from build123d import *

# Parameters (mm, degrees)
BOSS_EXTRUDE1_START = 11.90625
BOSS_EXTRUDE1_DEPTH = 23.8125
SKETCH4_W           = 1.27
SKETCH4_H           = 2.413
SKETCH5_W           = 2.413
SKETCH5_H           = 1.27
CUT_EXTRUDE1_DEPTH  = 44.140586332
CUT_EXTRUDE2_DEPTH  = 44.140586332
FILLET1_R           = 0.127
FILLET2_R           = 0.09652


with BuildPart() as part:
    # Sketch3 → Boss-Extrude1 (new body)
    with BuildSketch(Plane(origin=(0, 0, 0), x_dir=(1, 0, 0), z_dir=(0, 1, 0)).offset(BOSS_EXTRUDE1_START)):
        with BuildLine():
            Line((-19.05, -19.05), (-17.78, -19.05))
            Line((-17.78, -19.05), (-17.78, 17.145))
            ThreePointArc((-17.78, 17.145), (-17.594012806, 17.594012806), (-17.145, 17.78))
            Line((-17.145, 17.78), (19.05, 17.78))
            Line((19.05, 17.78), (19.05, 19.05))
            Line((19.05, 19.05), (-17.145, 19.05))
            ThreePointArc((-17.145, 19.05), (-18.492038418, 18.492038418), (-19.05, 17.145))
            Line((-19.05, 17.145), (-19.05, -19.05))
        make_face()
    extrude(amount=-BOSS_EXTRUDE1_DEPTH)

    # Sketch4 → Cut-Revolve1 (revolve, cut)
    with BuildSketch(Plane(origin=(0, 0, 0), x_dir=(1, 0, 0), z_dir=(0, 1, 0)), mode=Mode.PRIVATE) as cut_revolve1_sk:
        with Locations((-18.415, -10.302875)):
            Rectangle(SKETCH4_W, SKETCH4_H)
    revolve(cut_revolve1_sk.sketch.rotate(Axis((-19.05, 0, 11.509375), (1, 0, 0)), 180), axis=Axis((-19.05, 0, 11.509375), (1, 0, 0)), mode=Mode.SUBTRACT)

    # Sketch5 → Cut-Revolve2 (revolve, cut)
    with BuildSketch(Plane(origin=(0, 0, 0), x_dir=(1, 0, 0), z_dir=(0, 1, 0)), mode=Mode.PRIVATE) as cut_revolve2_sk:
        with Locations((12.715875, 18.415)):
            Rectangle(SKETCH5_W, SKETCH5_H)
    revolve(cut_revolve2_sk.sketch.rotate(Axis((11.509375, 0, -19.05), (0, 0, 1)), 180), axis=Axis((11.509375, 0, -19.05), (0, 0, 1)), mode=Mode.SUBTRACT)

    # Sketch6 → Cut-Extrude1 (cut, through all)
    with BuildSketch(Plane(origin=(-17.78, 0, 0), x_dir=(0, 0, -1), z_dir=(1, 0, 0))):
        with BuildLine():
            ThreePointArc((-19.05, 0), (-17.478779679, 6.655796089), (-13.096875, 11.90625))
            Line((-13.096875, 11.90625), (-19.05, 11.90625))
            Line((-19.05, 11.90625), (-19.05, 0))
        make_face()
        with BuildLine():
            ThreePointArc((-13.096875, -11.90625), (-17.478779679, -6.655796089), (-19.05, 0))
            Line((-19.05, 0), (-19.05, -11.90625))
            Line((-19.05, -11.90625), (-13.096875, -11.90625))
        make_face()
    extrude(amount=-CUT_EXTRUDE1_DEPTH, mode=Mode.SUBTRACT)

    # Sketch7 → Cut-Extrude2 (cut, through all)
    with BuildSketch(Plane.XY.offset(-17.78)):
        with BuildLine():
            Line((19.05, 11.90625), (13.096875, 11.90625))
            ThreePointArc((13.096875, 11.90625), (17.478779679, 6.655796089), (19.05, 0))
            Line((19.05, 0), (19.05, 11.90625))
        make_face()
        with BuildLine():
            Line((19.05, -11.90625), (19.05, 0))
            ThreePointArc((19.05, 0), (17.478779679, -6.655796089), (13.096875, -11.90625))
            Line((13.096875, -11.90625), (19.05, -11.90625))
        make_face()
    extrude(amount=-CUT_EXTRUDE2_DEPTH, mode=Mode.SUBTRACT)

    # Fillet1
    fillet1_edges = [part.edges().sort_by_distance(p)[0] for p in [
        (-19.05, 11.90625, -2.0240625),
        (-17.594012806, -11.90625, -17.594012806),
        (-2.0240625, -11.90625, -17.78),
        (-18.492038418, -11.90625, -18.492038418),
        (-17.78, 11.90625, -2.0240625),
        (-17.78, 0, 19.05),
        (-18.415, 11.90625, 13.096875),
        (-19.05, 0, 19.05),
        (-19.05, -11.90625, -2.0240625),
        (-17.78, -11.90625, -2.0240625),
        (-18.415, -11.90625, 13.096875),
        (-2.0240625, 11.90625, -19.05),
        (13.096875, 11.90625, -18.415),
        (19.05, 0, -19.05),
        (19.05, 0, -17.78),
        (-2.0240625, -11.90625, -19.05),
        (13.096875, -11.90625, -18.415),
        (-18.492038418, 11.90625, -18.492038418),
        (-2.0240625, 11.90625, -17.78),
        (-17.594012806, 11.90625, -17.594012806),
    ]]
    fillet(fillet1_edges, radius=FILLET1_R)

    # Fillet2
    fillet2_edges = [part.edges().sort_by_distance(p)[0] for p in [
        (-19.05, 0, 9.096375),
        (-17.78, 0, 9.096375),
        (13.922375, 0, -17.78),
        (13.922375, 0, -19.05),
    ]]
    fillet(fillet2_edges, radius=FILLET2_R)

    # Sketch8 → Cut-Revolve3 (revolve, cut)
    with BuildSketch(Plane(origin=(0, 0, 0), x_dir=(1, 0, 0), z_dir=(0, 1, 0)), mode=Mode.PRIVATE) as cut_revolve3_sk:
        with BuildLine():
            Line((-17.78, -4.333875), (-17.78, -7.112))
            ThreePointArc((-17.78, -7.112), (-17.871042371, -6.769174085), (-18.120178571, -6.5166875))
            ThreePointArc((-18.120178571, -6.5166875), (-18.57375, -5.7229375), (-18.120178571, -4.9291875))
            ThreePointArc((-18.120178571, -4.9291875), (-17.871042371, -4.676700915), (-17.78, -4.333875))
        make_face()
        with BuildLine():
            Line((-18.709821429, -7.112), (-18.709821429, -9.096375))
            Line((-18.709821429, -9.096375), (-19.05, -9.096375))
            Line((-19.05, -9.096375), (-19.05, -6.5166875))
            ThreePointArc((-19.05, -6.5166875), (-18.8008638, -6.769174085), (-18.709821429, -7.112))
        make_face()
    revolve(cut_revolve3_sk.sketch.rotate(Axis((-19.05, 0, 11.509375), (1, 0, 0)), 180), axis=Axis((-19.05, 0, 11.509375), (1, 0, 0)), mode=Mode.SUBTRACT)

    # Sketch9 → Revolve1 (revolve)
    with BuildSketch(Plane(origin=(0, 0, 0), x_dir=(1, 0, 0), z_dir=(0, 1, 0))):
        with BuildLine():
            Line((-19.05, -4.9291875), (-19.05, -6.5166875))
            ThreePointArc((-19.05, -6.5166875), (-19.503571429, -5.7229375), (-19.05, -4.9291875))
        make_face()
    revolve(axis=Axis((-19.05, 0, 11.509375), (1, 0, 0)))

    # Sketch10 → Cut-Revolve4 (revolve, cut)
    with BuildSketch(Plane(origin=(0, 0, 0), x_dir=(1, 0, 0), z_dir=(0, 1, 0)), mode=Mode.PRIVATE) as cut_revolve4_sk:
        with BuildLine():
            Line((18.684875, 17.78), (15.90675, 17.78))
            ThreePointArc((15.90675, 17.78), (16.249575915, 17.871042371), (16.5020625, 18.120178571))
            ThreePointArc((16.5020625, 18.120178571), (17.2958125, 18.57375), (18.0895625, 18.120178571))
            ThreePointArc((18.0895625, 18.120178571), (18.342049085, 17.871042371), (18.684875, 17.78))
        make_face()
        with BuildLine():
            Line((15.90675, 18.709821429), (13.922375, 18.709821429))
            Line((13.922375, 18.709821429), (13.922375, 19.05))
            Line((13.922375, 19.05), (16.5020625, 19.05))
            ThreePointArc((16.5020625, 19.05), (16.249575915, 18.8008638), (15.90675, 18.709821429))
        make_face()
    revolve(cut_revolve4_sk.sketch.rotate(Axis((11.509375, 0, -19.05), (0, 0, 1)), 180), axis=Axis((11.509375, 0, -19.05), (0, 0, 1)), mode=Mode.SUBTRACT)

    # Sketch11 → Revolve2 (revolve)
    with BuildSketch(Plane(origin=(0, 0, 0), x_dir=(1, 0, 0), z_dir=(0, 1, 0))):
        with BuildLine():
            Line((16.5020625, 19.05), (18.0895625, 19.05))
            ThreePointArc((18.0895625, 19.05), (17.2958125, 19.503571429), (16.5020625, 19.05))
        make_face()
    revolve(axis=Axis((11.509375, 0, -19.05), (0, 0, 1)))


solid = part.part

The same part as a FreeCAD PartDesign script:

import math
import FreeCAD as App
import Part
import Sketcher

V = App.Vector
Q = App.Units.Quantity


def edges_at(feature, points):
    """Names of the edges that pass closest to the given points."""
    edges = feature.Shape.Edges
    near = lambda p: min(range(len(edges)), key=lambda i: edges[i].distToShape(Part.Vertex(*p))[0])
    return sorted({f"Edge{near(p) + 1}" for p in points})

doc = App.newDocument("Part")
body = doc.addObject("PartDesign::Body", "Body")

sketch1 = body.newObject("Sketcher::SketchObject", "Sketch")
sketch1.AttachmentSupport = (doc.getObject("XZ_Plane"), [""])
sketch1.MapMode = "FlatFace"
sketch1.AttachmentOffset = App.Placement(V(0, 0, -0.46875 * 25.4), App.Rotation())
sketch1.addGeometry([
    Part.LineSegment(V(-19.1, 19.1, 0), V(-17.8, 19.1, 0)),
    Part.LineSegment(V(-17.8, 19.1, 0), V(-17.8, -17.1, 0)),
    Part.ArcOfCircle(Part.Circle(V(-17.1, -17.1, 0), V(0, 0, 1), 0.6), math.radians(180), math.radians(270)),
    Part.LineSegment(V(-17.1, -17.8, 0), V(19.1, -17.8, 0)),
    Part.LineSegment(V(19.1, -17.8, 0), V(19.1, -19.1, 0)),
    Part.LineSegment(V(19.1, -19.1, 0), V(-17.1, -19.1, 0)),
    Part.ArcOfCircle(Part.Circle(V(-17.1, -17.1, 0), V(0, 0, 1), 1.9), math.radians(-180), math.radians(-90)),
    Part.LineSegment(V(-19.1, -17.1, 0), V(-19.1, 19.1, 0)),
], False)
sketch1.addConstraint([
    Sketcher.Constraint("Coincident", 0, 2, 1, 1),
    Sketcher.Constraint("Tangent", 1, 2, 2, 1),
    Sketcher.Constraint("Tangent", 2, 2, 3, 1),
    Sketcher.Constraint("Coincident", 3, 2, 4, 1),
    Sketcher.Constraint("Coincident", 4, 2, 5, 1),
    Sketcher.Constraint("Tangent", 5, 2, 6, 2),
    Sketcher.Constraint("Tangent", 6, 1, 7, 1),
    Sketcher.Constraint("Coincident", 7, 2, 0, 1),
    Sketcher.Constraint("Horizontal", 0),
    Sketcher.Constraint("Vertical", 1),
    Sketcher.Constraint("Horizontal", 3),
    Sketcher.Constraint("Vertical", 4),
    Sketcher.Constraint("Horizontal", 5),
    Sketcher.Constraint("Vertical", 7),
    Sketcher.Constraint("Coincident", 6, 3, 2, 3),
    Sketcher.Constraint("Symmetric", 4, 2, 7, 2, -1, 1),
    Sketcher.Constraint("Equal", 5, 1),
    Sketcher.Constraint("Radius", 2, Q("0.025 in")),
    Sketcher.Constraint("Radius", 6, Q("0.075 in")),
    Sketcher.Constraint("DistanceX", 0, 2, -1, 1, Q("0.7 in")),
])
pad1 = body.newObject("PartDesign::Pad", "Pad")
pad1.Profile = sketch1
pad1.Length = Q("0.9375 in")

sketch2 = body.newObject("Sketcher::SketchObject", "Sketch001")
sketch2.AttachmentSupport = (doc.getObject("XZ_Plane"), [""])
sketch2.MapMode = "FlatFace"
sketch2.addGeometry([
    Part.LineSegment(V(-19.1, 9.1, 0), V(-19.1, 11.5, 0)),
    Part.LineSegment(V(-19.1, 11.5, 0), V(-17.8, 11.5, 0)),
    Part.LineSegment(V(-17.8, 11.5, 0), V(-17.8, 9.1, 0)),
    Part.LineSegment(V(-17.8, 9.1, 0), V(-19.1, 9.1, 0)),
], False)
sketch2.addGeometry(Part.LineSegment(V(-19.1, 11.5, 0), V(-17.8, 11.5, 0)), True)
sketch2.addConstraint([
    Sketcher.Constraint("Coincident", 0, 2, 1, 1),
    Sketcher.Constraint("Coincident", 1, 2, 2, 1),
    Sketcher.Constraint("Coincident", 2, 2, 3, 1),
    Sketcher.Constraint("Coincident", 3, 2, 0, 1),
    Sketcher.Constraint("Vertical", 0),
    Sketcher.Constraint("Horizontal", 1),
    Sketcher.Constraint("Vertical", 2),
    Sketcher.Constraint("Horizontal", 3),
    Sketcher.Constraint("Horizontal", 4),
    Sketcher.Constraint("Coincident", 4, 1, 0, 2),
    Sketcher.Constraint("Vertical", 2, 2, 4, 2),
    Sketcher.Constraint("DistanceX", 1, 1, 1, 2, Q("0.05 in")),
    Sketcher.Constraint("DistanceX", 1, 2, -1, 1, Q("0.7 in")),
    Sketcher.Constraint("DistanceY", 0, 1, 0, 2, Q("0.095 in")),
    Sketcher.Constraint("DistanceY", -1, 1, 0, 2, Q("0.453125 in")),
])
groove = body.newObject("PartDesign::Groove", "Groove")
groove.Profile = sketch2
groove.ReferenceAxis = (sketch2, ["Axis0"])
groove.Angle = 360

sketch3 = body.newObject("Sketcher::SketchObject", "Sketch002")
sketch3.AttachmentSupport = (doc.getObject("XZ_Plane"), [""])
sketch3.MapMode = "FlatFace"
sketch3.addGeometry([
    Part.LineSegment(V(11.5, -19.1, 0), V(11.5, -17.8, 0)),
    Part.LineSegment(V(11.5, -17.8, 0), V(13.9, -17.8, 0)),
    Part.LineSegment(V(13.9, -17.8, 0), V(13.9, -19.1, 0)),
    Part.LineSegment(V(13.9, -19.1, 0), V(11.5, -19.1, 0)),
], False)
sketch3.addGeometry(Part.LineSegment(V(11.5, -19.1, 0), V(11.5, -17.8, 0)), True)
sketch3.addConstraint([
    Sketcher.Constraint("Coincident", 0, 2, 1, 1),
    Sketcher.Constraint("Coincident", 1, 2, 2, 1),
    Sketcher.Constraint("Coincident", 2, 2, 3, 1),
    Sketcher.Constraint("Coincident", 3, 2, 0, 1),
    Sketcher.Constraint("Vertical", 0),
    Sketcher.Constraint("Horizontal", 1),
    Sketcher.Constraint("Vertical", 2),
    Sketcher.Constraint("Horizontal", 3),
    Sketcher.Constraint("Vertical", 4),
    Sketcher.Constraint("Coincident", 4, 1, 3, 2),
    Sketcher.Constraint("Horizontal", 1, 2, 4, 2),
    Sketcher.Constraint("DistanceY", 0, 1, 0, 2, Q("0.05 in")),
    Sketcher.Constraint("DistanceY", 0, 2, -1, 1, Q("0.7 in")),
    Sketcher.Constraint("DistanceX", 1, 1, 1, 2, Q("0.095 in")),
    Sketcher.Constraint("DistanceX", -1, 1, 0, 2, Q("0.453125 in")),
])
groove2 = body.newObject("PartDesign::Groove", "Groove001")
groove2.Profile = sketch3
groove2.ReferenceAxis = (sketch3, ["Axis0"])
groove2.Angle = 360

sketch4 = body.newObject("Sketcher::SketchObject", "Sketch003")
sketch4.AttachmentSupport = (doc.getObject("YZ_Plane"), [""])
sketch4.MapMode = "FlatFace"
sketch4.AttachmentOffset = App.Placement(V(0, 0, -0.7 * 25.4), App.Rotation())
sketch4.addGeometry([
    Part.ArcOfCircle(Part.Circle(V(0, 4, 0), V(0, 0, 1), 15), math.radians(37), math.radians(90)),
    Part.LineSegment(V(12, 13, 0), V(12, 19, 0)),
    Part.LineSegment(V(12, 19, 0), V(0, 19, 0)),
    Part.ArcOfCircle(Part.Circle(V(0, 4, 0), V(0, 0, 1), 15), math.radians(90), math.radians(143)),
    Part.LineSegment(V(0, 19, 0), V(-12, 19, 0)),
    Part.LineSegment(V(-12, 19, 0), V(-12, 13, 0)),
], False)
sketch4.addConstraint([
    Sketcher.Constraint("Coincident", 0, 1, 1, 1),
    Sketcher.Constraint("Coincident", 1, 2, 2, 1),
    Sketcher.Constraint("Tangent", 2, 2, 0, 2),
    Sketcher.Constraint("Tangent", 3, 1, 4, 1),
    Sketcher.Constraint("Coincident", 4, 2, 5, 1),
    Sketcher.Constraint("Coincident", 5, 2, 3, 2),
    Sketcher.Constraint("Vertical", 1),
    Sketcher.Constraint("Horizontal", 2),
    Sketcher.Constraint("Horizontal", 4),
    Sketcher.Constraint("Vertical", 5),
    Sketcher.Constraint("Coincident", 3, 3, 0, 3),
    Sketcher.Constraint("Equal", 0, 3),
    Sketcher.Constraint("Symmetric", 0, 1, 5, 2, -2),
    Sketcher.Constraint("DistanceX", 2, 2, 2, 1, Q("0.46875 in")),
    Sketcher.Constraint("DistanceY", 1, 1, 1, 2, Q("0.234375 in")),
    Sketcher.Constraint("DistanceY", -1, 1, 1, 2, Q("0.75 in")),
])
pocket1 = body.newObject("PartDesign::Pocket", "Pocket")
pocket1.Profile = sketch4
pocket1.Type = "ThroughAll"

sketch5 = body.newObject("Sketcher::SketchObject", "Sketch004")
sketch5.AttachmentSupport = (doc.getObject("XY_Plane"), [""])
sketch5.MapMode = "FlatFace"
sketch5.AttachmentOffset = App.Placement(V(0, 0, -0.7 * 25.4), App.Rotation())
sketch5.addGeometry([
    Part.LineSegment(V(19, 12, 0), V(13, 12, 0)),
    Part.ArcOfCircle(Part.Circle(V(4, 0, 0), V(0, 0, 1), 15), math.radians(0), math.radians(53)),
    Part.LineSegment(V(19, 0, 0), V(19, 12, 0)),
    Part.LineSegment(V(19, -12, 0), V(19, 0, 0)),
    Part.ArcOfCircle(Part.Circle(V(4, 0, 0), V(0, 0, 1), 15), math.radians(-53), math.radians(0)),
    Part.LineSegment(V(13, -12, 0), V(19, -12, 0)),
], False)
sketch5.addConstraint([
    Sketcher.Constraint("Coincident", 0, 2, 1, 2),
    Sketcher.Constraint("Tangent", 1, 1, 2, 1),
    Sketcher.Constraint("Coincident", 2, 2, 0, 1),
    Sketcher.Constraint("Tangent", 3, 2, 4, 2),
    Sketcher.Constraint("Coincident", 4, 1, 5, 1),
    Sketcher.Constraint("Coincident", 5, 2, 3, 1),
    Sketcher.Constraint("Horizontal", 0),
    Sketcher.Constraint("Vertical", 2),
    Sketcher.Constraint("Vertical", 3),
    Sketcher.Constraint("Horizontal", 5),
    Sketcher.Constraint("Coincident", 4, 3, 1, 3),
    Sketcher.Constraint("Equal", 1, 4),
    Sketcher.Constraint("Symmetric", 0, 2, 4, 1, -1),
    Sketcher.Constraint("DistanceX", 0, 2, 0, 1, Q("0.234375 in")),
    Sketcher.Constraint("DistanceY", 2, 1, 2, 2, Q("0.46875 in")),
    Sketcher.Constraint("DistanceX", -1, 1, 1, 1, Q("0.75 in")),
])
pocket2 = body.newObject("PartDesign::Pocket", "Pocket001")
pocket2.Profile = sketch5
pocket2.Type = "ThroughAll"
doc.recompute()

fillet = body.newObject("PartDesign::Fillet", "Fillet")
fillet.Base = (pocket2, edges_at(pocket2, [
    (-19.05, 11.906, -2.024),
    (-17.594, -11.906, -17.594),
    (-2.024, -11.906, -17.78),
    (-18.492, -11.906, -18.492),
    (-17.78, 11.906, -2.024),
    (-17.78, 6.656, 17.479),
    (-18.415, 11.906, 13.097),
    (-19.05, 6.656, 17.479),
    (-19.05, -11.906, -2.024),
    (-17.78, -11.906, -2.024),
    (-18.415, -11.906, 13.097),
    (-2.024, 11.906, -19.05),
    (13.097, 11.906, -18.415),
    (17.479, 6.656, -19.05),
    (17.479, 6.656, -17.78),
    (-2.024, -11.906, -19.05),
    (13.097, -11.906, -18.415),
    (-18.492, 11.906, -18.492),
    (-2.024, 11.906, -17.78),
    (-17.594, 11.906, -17.594),
]))
fillet.Radius = Q("0.005 in")
doc.recompute()

fillet2 = body.newObject("PartDesign::Fillet", "Fillet001")
fillet2.Base = (fillet, edges_at(fillet, [
    (-19.05, 0, 9.096),
    (-17.78, 0, 9.096),
    (13.922, 0, -17.78),
    (13.922, 0, -19.05),
]))
fillet2.Radius = Q("0.0038 in")

sketch6 = body.newObject("Sketcher::SketchObject", "Sketch005")
sketch6.AttachmentSupport = (doc.getObject("XZ_Plane"), [""])
sketch6.MapMode = "FlatFace"
sketch6.addGeometry([
    Part.LineSegment(V(-17.78, 7.11, 0), V(-17.78, 4.33, 0)),
    Part.ArcOfCircle(Part.Circle(V(-18.47, 4.33, 0), V(0, 0, 1), 0.69), math.radians(0), math.radians(59)),
    Part.ArcOfCircle(Part.Circle(V(-17.65, 5.72, 0), V(0, 0, 1), 0.92), math.radians(121), math.radians(239)),
    Part.ArcOfCircle(Part.Circle(V(-18.47, 7.11, 0), V(0, 0, 1), 0.69), math.radians(-59), math.radians(0)),
    Part.LineSegment(V(-18.71, 9.1, 0), V(-18.71, 7.11, 0)),
    Part.ArcOfCircle(Part.Circle(V(-19.4, 7.11, 0), V(0, 0, 1), 0.69), math.radians(-59), math.radians(0)),
    Part.LineSegment(V(-19.05, 6.52, 0), V(-19.05, 9.1, 0)),
    Part.LineSegment(V(-19.05, 9.1, 0), V(-18.71, 9.1, 0)),
], False)
sketch6.addGeometry(Part.LineSegment(V(-19.4, 11.51, 0), V(-17.65, 11.51, 0)), True)
sketch6.addConstraint([
    Sketcher.Constraint("Tangent", 0, 2, 1, 1),
    Sketcher.Constraint("Tangent", 1, 2, 2, 2),
    Sketcher.Constraint("Tangent", 2, 1, 3, 1),
    Sketcher.Constraint("Tangent", 3, 2, 0, 1),
    Sketcher.Constraint("Tangent", 4, 2, 5, 2),
    Sketcher.Constraint("Coincident", 5, 1, 6, 1),
    Sketcher.Constraint("Coincident", 6, 2, 7, 1),
    Sketcher.Constraint("Coincident", 7, 2, 4, 1),
    Sketcher.Constraint("Vertical", 0),
    Sketcher.Constraint("Vertical", 4),
    Sketcher.Constraint("Vertical", 6),
    Sketcher.Constraint("Horizontal", 7),
    Sketcher.Constraint("Horizontal", 8),
    Sketcher.Constraint("Equal", 1, 3),
    Sketcher.Constraint("Equal", 3, 5),
    Sketcher.Constraint("Horizontal", 3, 3, 5, 3),
    Sketcher.Constraint("Horizontal", 2, 1, 5, 1),
    Sketcher.Constraint("Vertical", 5, 3, 8, 1),
    Sketcher.Constraint("Vertical", 2, 3, 8, 2),
    Sketcher.Constraint("DistanceX", 0, 2, -1, 1, Q("0.7 in")),
    Sketcher.Constraint("DistanceY", 0, 2, 0, 1, Q("0.109375 in")),
    Sketcher.Constraint("DistanceY", 4, 2, 4, 1, Q("0.078125 in")),
    Sketcher.Constraint("DistanceY", -1, 1, 3, 3, Q("0.28 in")),
    Sketcher.Constraint("DistanceX", 5, 1, -1, 1, Q("0.75 in")),
    Sketcher.Constraint("DistanceY", -1, 1, 8, 1, Q("0.453125 in")),
    Sketcher.Constraint("DistanceY", 1, 2, 2, 3, Q("0.03125 in")),
    Sketcher.Constraint("Radius", 1, Q("0.690988 mm")),
])
groove3 = body.newObject("PartDesign::Groove", "Groove002")
groove3.Profile = sketch6
groove3.ReferenceAxis = (sketch6, ["Axis0"])
groove3.Angle = 360

sketch7 = body.newObject("Sketcher::SketchObject", "Sketch006")
sketch7.AttachmentSupport = (doc.getObject("XZ_Plane"), [""])
sketch7.MapMode = "FlatFace"
sketch7.addGeometry([
    Part.LineSegment(V(-19.05, 6.52, 0), V(-19.05, 4.93, 0)),
    Part.ArcOfCircle(Part.Circle(V(-18.58, 5.72, 0), V(0, 0, 1), 0.92), math.radians(121), math.radians(239)),
], False)
sketch7.addGeometry(Part.LineSegment(V(-19.05, 11.51, 0), V(-18.58, 11.51, 0)), True)
sketch7.addConstraint([
    Sketcher.Constraint("Coincident", 0, 1, 1, 1),
    Sketcher.Constraint("Coincident", 1, 2, 0, 2),
    Sketcher.Constraint("Vertical", 0),
    Sketcher.Constraint("Horizontal", 2),
    Sketcher.Constraint("Vertical", 1, 2, 2, 1),
    Sketcher.Constraint("Vertical", 1, 3, 2, 2),
    Sketcher.Constraint("DistanceY", 0, 2, 0, 1, Q("0.0625 in")),
    Sketcher.Constraint("DistanceX", 0, 1, -1, 1, Q("0.75 in")),
    Sketcher.Constraint("DistanceY", -1, 1, 2, 1, Q("0.453125 in")),
    Sketcher.Constraint("Radius", 1, Q("0.921317 mm")),
    Sketcher.Constraint("DistanceY", -1, 1, 1, 3, Q("5.722937 mm")),
])
revolution = body.newObject("PartDesign::Revolution", "Revolution")
revolution.Profile = sketch7
revolution.ReferenceAxis = (sketch7, ["Axis0"])
revolution.Angle = 360

sketch8 = body.newObject("Sketcher::SketchObject", "Sketch007")
sketch8.AttachmentSupport = (doc.getObject("XZ_Plane"), [""])
sketch8.MapMode = "FlatFace"
sketch8.addGeometry([
    Part.LineSegment(V(15.91, -17.78, 0), V(18.68, -17.78, 0)),
    Part.ArcOfCircle(Part.Circle(V(18.68, -18.47, 0), V(0, 0, 1), 0.69), math.radians(90), math.radians(149)),
    Part.ArcOfCircle(Part.Circle(V(17.3, -17.65, 0), V(0, 0, 1), 0.92), math.radians(-149), math.radians(-31)),
    Part.ArcOfCircle(Part.Circle(V(15.91, -18.47, 0), V(0, 0, 1), 0.69), math.radians(31), math.radians(90)),
    Part.LineSegment(V(13.92, -18.71, 0), V(15.91, -18.71, 0)),
    Part.ArcOfCircle(Part.Circle(V(15.91, -19.4, 0), V(0, 0, 1), 0.69), math.radians(31), math.radians(90)),
    Part.LineSegment(V(16.5, -19.05, 0), V(13.92, -19.05, 0)),
    Part.LineSegment(V(13.92, -19.05, 0), V(13.92, -18.71, 0)),
], False)
sketch8.addGeometry(Part.LineSegment(V(11.51, -19.4, 0), V(11.51, -17.65, 0)), True)
sketch8.addConstraint([
    Sketcher.Constraint("Tangent", 0, 2, 1, 1),
    Sketcher.Constraint("Tangent", 1, 2, 2, 2),
    Sketcher.Constraint("Tangent", 2, 1, 3, 1),
    Sketcher.Constraint("Tangent", 3, 2, 0, 1),
    Sketcher.Constraint("Tangent", 4, 2, 5, 2),
    Sketcher.Constraint("Coincident", 5, 1, 6, 1),
    Sketcher.Constraint("Coincident", 6, 2, 7, 1),
    Sketcher.Constraint("Coincident", 7, 2, 4, 1),
    Sketcher.Constraint("Horizontal", 0),
    Sketcher.Constraint("Horizontal", 4),
    Sketcher.Constraint("Horizontal", 6),
    Sketcher.Constraint("Vertical", 7),
    Sketcher.Constraint("Vertical", 8),
    Sketcher.Constraint("Equal", 1, 3),
    Sketcher.Constraint("Equal", 3, 5),
    Sketcher.Constraint("Horizontal", 5, 3, 8, 1),
    Sketcher.Constraint("Horizontal", 2, 3, 8, 2),
    Sketcher.Constraint("Vertical", 3, 3, 5, 3),
    Sketcher.Constraint("Vertical", 2, 1, 5, 1),
    Sketcher.Constraint("DistanceY", 0, 2, -1, 1, Q("0.7 in")),
    Sketcher.Constraint("DistanceX", 0, 1, 0, 2, Q("0.109375 in")),
    Sketcher.Constraint("DistanceX", 4, 1, 4, 2, Q("0.078125 in")),
    Sketcher.Constraint("DistanceY", 5, 1, -1, 1, Q("0.75 in")),
    Sketcher.Constraint("DistanceX", -1, 1, 8, 1, Q("0.453125 in")),
    Sketcher.Constraint("DistanceX", 2, 3, 1, 2, Q("0.03125 in")),
    Sketcher.Constraint("DistanceX", 8, 1, 6, 2, Q("0.095 in")),
    Sketcher.Constraint("Radius", 1, Q("0.690988 mm")),
])
groove4 = body.newObject("PartDesign::Groove", "Groove003")
groove4.Profile = sketch8
groove4.ReferenceAxis = (sketch8, ["Axis0"])
groove4.Angle = 360

sketch9 = body.newObject("Sketcher::SketchObject", "Sketch008")
sketch9.AttachmentSupport = (doc.getObject("XZ_Plane"), [""])
sketch9.MapMode = "FlatFace"
sketch9.addGeometry([
    Part.LineSegment(V(16.5, -19.05, 0), V(18.09, -19.05, 0)),
    Part.ArcOfCircle(Part.Circle(V(17.3, -18.58, 0), V(0, 0, 1), 0.92), math.radians(-149), math.radians(-31)),
], False)
sketch9.addGeometry(Part.LineSegment(V(11.51, -19.05, 0), V(11.51, -18.58, 0)), True)
sketch9.addConstraint([
    Sketcher.Constraint("Coincident", 0, 1, 1, 1),
    Sketcher.Constraint("Coincident", 1, 2, 0, 2),
    Sketcher.Constraint("Horizontal", 0),
    Sketcher.Constraint("Vertical", 2),
    Sketcher.Constraint("Horizontal", 1, 2, 2, 1),
    Sketcher.Constraint("Horizontal", 1, 3, 2, 2),
    Sketcher.Constraint("DistanceX", 0, 1, 0, 2, Q("0.0625 in")),
    Sketcher.Constraint("DistanceY", 0, 1, -1, 1, Q("0.75 in")),
    Sketcher.Constraint("DistanceX", -1, 1, 2, 1, Q("0.453125 in")),
    Sketcher.Constraint("Radius", 1, Q("0.921317 mm")),
    Sketcher.Constraint("DistanceX", -1, 1, 1, 3, Q("17.295813 mm")),
])
revolution2 = body.newObject("PartDesign::Revolution", "Revolution001")
revolution2.Profile = sketch9
revolution2.ReferenceAxis = (sketch9, ["Axis0"])
revolution2.Angle = 360

doc.recompute()
